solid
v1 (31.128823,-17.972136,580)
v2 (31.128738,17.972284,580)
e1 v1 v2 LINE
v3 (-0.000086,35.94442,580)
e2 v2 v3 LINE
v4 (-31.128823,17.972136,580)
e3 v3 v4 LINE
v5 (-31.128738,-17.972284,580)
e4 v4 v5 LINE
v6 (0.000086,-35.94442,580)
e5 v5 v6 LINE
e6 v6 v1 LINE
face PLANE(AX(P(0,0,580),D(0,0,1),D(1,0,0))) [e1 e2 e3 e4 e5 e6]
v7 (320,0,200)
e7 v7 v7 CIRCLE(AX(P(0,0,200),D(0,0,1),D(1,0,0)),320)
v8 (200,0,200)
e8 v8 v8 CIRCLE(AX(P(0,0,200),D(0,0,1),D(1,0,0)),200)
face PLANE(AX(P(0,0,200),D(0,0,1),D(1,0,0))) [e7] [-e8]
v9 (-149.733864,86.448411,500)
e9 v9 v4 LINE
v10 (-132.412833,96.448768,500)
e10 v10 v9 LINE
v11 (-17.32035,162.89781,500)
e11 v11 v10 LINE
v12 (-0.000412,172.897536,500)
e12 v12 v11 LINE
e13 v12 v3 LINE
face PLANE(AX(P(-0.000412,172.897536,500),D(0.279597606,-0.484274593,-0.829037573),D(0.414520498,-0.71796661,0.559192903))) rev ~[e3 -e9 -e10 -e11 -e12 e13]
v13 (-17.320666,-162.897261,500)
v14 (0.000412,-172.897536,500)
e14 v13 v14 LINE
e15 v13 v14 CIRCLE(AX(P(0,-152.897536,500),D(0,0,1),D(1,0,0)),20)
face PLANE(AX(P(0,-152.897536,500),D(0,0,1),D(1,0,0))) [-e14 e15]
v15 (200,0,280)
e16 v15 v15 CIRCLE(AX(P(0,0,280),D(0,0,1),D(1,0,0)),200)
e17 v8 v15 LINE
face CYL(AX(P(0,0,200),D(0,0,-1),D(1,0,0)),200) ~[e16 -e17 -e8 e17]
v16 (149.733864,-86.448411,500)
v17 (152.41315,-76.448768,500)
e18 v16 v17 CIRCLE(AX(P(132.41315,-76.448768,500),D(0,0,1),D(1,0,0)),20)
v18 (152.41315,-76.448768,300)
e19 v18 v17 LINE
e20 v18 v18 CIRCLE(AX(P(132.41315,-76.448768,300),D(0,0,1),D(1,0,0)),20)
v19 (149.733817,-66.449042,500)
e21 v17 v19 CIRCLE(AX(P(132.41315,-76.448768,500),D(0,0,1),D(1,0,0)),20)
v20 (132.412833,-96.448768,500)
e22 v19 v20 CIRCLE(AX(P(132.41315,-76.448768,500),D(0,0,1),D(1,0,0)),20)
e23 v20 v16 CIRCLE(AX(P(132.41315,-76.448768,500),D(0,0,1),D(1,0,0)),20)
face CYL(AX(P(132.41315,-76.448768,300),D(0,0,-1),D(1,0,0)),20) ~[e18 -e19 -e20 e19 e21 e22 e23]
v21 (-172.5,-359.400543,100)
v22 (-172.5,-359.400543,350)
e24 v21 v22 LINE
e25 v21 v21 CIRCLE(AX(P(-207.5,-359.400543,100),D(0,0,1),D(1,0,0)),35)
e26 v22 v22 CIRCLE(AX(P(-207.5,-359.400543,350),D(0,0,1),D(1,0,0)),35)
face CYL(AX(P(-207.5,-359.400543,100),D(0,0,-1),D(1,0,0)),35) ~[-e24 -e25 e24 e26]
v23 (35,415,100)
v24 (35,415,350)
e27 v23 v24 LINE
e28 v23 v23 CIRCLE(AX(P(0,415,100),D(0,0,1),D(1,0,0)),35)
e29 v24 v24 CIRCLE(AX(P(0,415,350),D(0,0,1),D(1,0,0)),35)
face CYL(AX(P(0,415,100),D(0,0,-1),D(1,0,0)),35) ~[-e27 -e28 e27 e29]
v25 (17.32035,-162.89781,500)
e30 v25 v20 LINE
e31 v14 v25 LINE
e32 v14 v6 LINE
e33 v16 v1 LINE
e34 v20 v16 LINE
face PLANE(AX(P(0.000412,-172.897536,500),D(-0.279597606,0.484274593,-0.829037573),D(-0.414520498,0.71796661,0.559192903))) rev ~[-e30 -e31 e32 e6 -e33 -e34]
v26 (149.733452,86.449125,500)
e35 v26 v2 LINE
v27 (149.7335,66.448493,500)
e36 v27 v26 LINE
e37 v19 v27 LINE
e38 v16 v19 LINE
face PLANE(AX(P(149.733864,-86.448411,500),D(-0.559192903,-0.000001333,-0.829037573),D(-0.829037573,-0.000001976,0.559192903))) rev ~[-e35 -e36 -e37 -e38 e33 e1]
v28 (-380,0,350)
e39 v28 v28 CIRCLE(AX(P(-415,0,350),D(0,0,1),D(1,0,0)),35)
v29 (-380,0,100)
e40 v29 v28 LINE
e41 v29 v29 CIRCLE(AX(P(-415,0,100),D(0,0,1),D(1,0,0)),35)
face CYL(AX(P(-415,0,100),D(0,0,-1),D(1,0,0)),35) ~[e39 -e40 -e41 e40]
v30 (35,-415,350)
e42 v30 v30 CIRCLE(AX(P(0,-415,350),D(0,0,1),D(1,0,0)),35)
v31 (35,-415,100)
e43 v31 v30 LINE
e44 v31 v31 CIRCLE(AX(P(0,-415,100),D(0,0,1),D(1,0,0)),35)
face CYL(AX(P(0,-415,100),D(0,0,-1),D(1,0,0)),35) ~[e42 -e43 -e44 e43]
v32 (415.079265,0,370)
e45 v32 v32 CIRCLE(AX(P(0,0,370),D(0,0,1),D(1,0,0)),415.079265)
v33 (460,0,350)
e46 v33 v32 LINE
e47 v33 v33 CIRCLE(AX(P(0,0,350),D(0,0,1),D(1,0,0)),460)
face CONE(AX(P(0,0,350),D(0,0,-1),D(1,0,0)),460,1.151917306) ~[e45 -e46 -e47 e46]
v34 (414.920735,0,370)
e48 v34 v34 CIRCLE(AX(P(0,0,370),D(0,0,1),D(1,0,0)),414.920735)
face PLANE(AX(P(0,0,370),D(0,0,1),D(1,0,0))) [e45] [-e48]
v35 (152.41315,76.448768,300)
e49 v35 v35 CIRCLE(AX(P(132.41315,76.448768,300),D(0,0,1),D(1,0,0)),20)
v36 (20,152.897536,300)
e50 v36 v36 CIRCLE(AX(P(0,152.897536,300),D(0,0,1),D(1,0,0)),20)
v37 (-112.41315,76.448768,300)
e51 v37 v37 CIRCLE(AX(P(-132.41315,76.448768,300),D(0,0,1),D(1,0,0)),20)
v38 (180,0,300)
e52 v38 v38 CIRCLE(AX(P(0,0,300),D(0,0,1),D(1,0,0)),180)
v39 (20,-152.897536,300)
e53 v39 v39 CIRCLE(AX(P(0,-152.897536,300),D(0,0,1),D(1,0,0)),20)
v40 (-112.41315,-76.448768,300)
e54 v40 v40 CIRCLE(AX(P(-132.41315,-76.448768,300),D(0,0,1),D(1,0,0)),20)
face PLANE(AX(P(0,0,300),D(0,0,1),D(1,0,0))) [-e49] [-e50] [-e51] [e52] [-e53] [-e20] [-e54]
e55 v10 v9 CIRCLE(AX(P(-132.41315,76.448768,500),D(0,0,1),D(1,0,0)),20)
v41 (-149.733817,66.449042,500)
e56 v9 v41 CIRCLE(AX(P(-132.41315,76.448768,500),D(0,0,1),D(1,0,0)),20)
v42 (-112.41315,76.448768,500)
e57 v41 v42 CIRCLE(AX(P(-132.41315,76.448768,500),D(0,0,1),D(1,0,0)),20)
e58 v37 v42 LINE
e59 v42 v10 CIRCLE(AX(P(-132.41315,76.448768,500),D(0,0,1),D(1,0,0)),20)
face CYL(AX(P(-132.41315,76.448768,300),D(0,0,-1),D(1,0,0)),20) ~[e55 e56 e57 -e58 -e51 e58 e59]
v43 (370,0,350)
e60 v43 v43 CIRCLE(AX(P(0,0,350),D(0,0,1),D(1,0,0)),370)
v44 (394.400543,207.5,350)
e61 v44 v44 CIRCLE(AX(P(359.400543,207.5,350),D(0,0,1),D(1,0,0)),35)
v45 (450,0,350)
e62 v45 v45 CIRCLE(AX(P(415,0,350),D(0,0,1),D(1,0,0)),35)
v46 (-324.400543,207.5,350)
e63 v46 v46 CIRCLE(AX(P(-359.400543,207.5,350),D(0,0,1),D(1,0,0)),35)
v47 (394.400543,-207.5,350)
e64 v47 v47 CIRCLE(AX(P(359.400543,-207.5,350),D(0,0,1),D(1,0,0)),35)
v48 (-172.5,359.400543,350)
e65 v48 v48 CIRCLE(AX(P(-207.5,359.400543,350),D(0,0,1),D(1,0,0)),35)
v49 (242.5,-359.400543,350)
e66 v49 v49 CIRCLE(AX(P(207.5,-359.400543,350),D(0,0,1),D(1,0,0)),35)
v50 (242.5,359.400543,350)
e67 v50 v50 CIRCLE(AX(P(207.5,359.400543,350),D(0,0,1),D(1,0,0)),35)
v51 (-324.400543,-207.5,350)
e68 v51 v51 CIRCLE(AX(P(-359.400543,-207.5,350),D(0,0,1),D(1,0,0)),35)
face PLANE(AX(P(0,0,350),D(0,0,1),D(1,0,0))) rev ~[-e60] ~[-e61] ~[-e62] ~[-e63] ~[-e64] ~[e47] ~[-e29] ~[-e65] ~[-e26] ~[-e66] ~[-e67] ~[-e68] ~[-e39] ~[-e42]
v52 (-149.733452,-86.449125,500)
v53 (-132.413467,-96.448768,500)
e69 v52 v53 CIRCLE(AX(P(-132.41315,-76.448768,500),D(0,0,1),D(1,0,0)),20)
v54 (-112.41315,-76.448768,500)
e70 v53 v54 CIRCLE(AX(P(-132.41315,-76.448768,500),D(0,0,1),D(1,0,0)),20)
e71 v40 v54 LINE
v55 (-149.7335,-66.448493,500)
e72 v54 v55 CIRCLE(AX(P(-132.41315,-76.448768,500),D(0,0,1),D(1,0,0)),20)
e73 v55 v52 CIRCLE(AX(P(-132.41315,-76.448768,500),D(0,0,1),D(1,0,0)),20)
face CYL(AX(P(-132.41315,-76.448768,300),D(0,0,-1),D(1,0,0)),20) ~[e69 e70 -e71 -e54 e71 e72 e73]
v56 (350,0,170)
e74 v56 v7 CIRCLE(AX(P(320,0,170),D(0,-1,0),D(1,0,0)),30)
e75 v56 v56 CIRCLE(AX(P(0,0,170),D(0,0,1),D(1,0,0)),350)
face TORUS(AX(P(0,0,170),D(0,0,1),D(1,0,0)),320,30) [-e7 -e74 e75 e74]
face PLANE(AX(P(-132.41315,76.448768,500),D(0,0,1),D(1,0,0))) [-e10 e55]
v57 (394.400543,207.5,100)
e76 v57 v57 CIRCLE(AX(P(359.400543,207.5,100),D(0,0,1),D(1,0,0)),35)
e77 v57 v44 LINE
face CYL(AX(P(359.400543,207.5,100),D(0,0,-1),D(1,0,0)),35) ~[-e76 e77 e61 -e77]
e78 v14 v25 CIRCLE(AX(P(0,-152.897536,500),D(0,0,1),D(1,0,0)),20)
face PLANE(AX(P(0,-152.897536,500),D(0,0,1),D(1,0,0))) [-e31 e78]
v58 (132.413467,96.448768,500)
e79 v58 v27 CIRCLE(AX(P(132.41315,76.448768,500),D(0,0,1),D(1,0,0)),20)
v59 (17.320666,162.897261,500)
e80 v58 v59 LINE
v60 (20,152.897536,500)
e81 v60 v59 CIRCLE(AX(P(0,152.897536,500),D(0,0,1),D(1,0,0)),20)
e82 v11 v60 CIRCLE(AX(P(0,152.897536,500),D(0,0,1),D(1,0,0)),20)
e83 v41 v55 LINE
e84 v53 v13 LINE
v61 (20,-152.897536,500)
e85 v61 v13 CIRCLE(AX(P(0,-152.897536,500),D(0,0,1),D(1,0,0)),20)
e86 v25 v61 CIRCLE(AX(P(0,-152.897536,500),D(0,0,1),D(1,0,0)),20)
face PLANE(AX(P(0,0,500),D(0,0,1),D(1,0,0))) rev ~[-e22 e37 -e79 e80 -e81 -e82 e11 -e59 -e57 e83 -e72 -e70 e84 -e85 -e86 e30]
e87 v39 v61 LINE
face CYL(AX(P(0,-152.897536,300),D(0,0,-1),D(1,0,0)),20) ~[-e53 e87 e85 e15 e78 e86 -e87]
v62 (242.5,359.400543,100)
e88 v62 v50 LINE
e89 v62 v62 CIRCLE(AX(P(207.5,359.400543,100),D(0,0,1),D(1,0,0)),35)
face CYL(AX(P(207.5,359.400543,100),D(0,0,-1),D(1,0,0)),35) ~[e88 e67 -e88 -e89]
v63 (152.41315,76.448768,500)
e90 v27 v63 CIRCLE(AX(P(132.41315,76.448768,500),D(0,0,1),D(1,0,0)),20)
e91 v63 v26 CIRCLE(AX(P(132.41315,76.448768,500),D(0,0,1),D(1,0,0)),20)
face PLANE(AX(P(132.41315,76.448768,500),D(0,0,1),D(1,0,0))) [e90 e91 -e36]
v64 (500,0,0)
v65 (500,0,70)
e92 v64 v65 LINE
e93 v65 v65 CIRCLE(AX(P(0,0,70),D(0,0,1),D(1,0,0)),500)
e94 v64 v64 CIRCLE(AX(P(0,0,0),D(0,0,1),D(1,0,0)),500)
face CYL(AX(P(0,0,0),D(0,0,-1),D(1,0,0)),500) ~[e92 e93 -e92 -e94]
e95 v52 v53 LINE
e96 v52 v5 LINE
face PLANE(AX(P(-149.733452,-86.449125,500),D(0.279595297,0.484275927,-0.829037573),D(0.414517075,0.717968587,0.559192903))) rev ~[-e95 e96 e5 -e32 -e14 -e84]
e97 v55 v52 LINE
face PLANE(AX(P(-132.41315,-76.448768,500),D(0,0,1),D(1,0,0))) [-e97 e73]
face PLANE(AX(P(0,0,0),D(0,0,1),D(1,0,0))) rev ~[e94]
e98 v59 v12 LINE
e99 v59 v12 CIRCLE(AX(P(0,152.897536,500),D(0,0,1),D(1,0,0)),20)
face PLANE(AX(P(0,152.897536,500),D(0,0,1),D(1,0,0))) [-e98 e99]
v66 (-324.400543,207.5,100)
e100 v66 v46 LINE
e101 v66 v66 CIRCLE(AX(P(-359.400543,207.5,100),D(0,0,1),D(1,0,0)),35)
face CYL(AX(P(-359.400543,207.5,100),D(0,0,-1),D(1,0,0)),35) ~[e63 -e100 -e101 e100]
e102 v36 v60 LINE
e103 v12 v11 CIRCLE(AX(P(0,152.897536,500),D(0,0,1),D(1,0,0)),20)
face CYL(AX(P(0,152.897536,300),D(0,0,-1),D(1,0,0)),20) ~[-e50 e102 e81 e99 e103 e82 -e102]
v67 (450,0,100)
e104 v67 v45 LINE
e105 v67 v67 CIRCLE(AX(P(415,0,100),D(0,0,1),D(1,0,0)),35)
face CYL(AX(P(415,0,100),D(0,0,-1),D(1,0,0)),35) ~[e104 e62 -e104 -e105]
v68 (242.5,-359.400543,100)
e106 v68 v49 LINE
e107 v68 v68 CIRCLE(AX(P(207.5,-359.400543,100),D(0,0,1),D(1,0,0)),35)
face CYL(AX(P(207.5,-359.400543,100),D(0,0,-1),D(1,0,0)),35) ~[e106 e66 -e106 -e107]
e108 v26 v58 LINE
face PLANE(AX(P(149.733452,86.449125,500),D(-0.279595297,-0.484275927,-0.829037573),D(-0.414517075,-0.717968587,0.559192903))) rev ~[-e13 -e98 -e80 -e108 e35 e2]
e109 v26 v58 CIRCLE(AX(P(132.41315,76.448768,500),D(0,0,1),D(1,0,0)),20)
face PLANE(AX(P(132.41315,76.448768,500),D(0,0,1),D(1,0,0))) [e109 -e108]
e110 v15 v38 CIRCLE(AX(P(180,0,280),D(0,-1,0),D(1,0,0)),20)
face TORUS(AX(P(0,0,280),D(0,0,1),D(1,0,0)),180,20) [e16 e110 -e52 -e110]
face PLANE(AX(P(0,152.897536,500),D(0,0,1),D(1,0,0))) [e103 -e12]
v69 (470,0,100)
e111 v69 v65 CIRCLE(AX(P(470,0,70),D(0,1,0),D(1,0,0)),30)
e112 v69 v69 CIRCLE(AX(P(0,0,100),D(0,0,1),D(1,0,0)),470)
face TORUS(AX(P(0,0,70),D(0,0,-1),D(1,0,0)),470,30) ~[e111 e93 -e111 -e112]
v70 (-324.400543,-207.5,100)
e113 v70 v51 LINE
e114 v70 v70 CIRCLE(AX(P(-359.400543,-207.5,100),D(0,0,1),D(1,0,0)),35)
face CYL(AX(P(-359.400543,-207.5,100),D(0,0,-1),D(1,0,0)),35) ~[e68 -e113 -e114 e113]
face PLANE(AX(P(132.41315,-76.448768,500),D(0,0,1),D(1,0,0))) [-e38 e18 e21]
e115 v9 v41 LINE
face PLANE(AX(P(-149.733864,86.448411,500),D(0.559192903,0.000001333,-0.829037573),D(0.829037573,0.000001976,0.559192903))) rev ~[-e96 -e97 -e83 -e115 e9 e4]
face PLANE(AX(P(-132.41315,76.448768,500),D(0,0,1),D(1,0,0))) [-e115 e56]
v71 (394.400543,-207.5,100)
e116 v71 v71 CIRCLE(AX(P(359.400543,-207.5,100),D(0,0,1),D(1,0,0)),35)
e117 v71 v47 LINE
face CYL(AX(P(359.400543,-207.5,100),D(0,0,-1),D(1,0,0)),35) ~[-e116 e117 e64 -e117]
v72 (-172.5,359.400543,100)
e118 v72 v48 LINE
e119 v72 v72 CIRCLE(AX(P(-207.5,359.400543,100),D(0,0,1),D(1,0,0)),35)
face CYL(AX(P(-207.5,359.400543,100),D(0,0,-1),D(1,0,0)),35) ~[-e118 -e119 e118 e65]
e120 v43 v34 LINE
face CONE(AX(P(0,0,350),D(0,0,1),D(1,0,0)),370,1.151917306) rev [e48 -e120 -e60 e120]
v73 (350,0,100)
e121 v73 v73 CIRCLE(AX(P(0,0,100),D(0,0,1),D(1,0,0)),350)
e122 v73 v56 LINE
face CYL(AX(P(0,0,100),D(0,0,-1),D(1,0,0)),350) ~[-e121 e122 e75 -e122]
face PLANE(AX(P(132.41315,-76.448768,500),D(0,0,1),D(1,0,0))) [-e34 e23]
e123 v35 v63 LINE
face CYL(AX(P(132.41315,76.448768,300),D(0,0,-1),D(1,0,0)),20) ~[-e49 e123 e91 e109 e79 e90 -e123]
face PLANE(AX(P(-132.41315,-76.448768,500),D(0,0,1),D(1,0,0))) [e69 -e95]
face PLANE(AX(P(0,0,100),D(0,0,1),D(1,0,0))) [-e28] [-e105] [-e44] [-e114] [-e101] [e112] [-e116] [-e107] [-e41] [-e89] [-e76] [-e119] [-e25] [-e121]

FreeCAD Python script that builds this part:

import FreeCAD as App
import Part
import Sketcher

V = App.Vector
Q = App.Units.Quantity


def edges_at(feature, points):
    """Names of the edges that pass closest to the given points."""
    edges = feature.Shape.Edges
    near = lambda p: min(range(len(edges)), key=lambda i: edges[i].distToShape(Part.Vertex(*p))[0])
    return sorted({f"Edge{near(p) + 1}" for p in points})


def faces_at(feature, points):
    """Names of the faces that lie closest to the given points."""
    faces = feature.Shape.Faces
    near = lambda p: min(range(len(faces)), key=lambda i: faces[i].distToShape(Part.Vertex(*p))[0])
    return sorted({f"Face{near(p) + 1}" for p in points})


def add_polygon(sketch, points):
    """Adds a closed chain of lines whose ends are joined by coincident constraints."""
    first, n = sketch.GeometryCount, len(points)
    for a, b in zip(points, points[1:] + points[:1]):
        sketch.addGeometry(Part.LineSegment(App.Vector(*a, 0), App.Vector(*b, 0)), False)
    for i in range(n):
        sketch.addConstraint(Sketcher.Constraint("Coincident", first + i, 2, first + (i + 1) % n, 1))

doc = App.newDocument("Part")
body = doc.addObject("PartDesign::Body", "Body")

# Sketch on XY plane
sketch1 = body.newObject("Sketcher::SketchObject", "Sketch")
sketch1.AttachmentSupport = (doc.getObject("XY_Plane"), [""])
sketch1.MapMode = "FlatFace"
sketch1.addGeometry(Part.Circle(V(0, 0, 0), V(0, 0, 1), 500), False)
sketch1.addConstraint([
    Sketcher.Constraint("Coincident", 0, 3, -1, 1),
    Sketcher.Constraint("Diameter", 0, Q("1000 mm")),
])
pad1 = body.newObject("PartDesign::Pad", "Pad")
pad1.Profile = sketch1
pad1.Length = 100

# Sketch on XY plane
sketch2 = body.newObject("Sketcher::SketchObject", "Sketch001")
sketch2.AttachmentSupport = (doc.getObject("XY_Plane"), [""])
sketch2.MapMode = "FlatFace"
sketch2.AttachmentOffset = App.Placement(V(0, 0, 100), App.Rotation())
sketch2.addGeometry(Part.Circle(V(0, 0, 0), V(0, 0, 1), 350), False)
sketch2.addConstraint([
    Sketcher.Constraint("Coincident", 0, 3, -1, 1),
    Sketcher.Constraint("Diameter", 0, Q("700 mm")),
])
pad2 = body.newObject("PartDesign::Pad", "Pad001")
pad2.Profile = sketch2
pad2.Length = 100

# Sketch on XY plane
sketch3 = body.newObject("Sketcher::SketchObject", "Sketch002")
sketch3.AttachmentSupport = (doc.getObject("XY_Plane"), [""])
sketch3.MapMode = "FlatFace"
sketch3.AttachmentOffset = App.Placement(V(0, 0, 200), App.Rotation())
sketch3.addGeometry(Part.Circle(V(0, 0, 0), V(0, 0, 1), 200), False)
sketch3.addConstraint([
    Sketcher.Constraint("Coincident", 0, 3, -1, 1),
    Sketcher.Constraint("Diameter", 0, Q("400 mm")),
])
pad3 = body.newObject("PartDesign::Pad", "Pad002")
pad3.Profile = sketch3
pad3.Length = 100

# Sketch on XY plane
sketch4 = body.newObject("Sketcher::SketchObject", "Sketch003")
sketch4.AttachmentSupport = (doc.getObject("XY_Plane"), [""])
sketch4.MapMode = "FlatFace"
sketch4.AttachmentOffset = App.Placement(V(0, 0, 300), App.Rotation())
sketch4.addGeometry([
    Part.Circle(V(0, 153, 0), V(0, 0, 1), 20),  # 0
    Part.Circle(V(132, 76, 0), V(0, 0, 1), 20),  # 1
    Part.Circle(V(132, -76, 0), V(0, 0, 1), 20),  # 2
    Part.Circle(V(0, -153, 0), V(0, 0, 1), 20),  # 3
    Part.Circle(V(-132, -76, 0), V(0, 0, 1), 20),  # 4
    Part.Circle(V(-132, 76, 0), V(0, 0, 1), 20),  # 5
], False)
sketch4.addConstraint([
    Sketcher.Constraint("Equal", 0, 1),
    Sketcher.Constraint("Equal", 1, 2),
    Sketcher.Constraint("Equal", 2, 3),
    Sketcher.Constraint("Equal", 3, 4),
    Sketcher.Constraint("Equal", 4, 5),
    Sketcher.Constraint("Symmetric", 0, 3, 3, 3, -1, 1),
    Sketcher.Constraint("Symmetric", 1, 3, 4, 3, -1, 1),
    Sketcher.Constraint("Symmetric", 2, 3, 5, 3, -1, 1),
    Sketcher.Constraint("Symmetric", 2, 3, 4, 3, -2),
    Sketcher.Constraint("PointOnObject", 0, 3, -2),
    Sketcher.Constraint("Diameter", 0, Q("40 mm")),
    Sketcher.Constraint("DistanceX", 4, 3, 2, 3, Q("264.8263 mm")),
    Sketcher.Constraint("DistanceY", 3, 3, 0, 3, Q("305.795071 mm")),
    Sketcher.Constraint("DistanceY", -1, 1, 1, 3, Q("76.448768 mm")),
])
pad4 = body.newObject("PartDesign::Pad", "Pad003")
pad4.Profile = sketch4
pad4.Length = 200

# Sketch on XY plane
sketch5 = body.newObject("Sketcher::SketchObject", "Sketch004")
sketch5.AttachmentSupport = (doc.getObject("XY_Plane"), [""])
sketch5.MapMode = "FlatFace"
sketch5.AttachmentOffset = App.Placement(V(0, 0, 500), App.Rotation())
add_polygon(sketch5, [(-150, -86), (0, -173), (150, -86), (150, 86), (0, 173), (-150, 86)])  # lines 0-5
sketch5.addConstraint([
    Sketcher.Constraint("Symmetric", 0, 2, 3, 2, -1, 1),
    Sketcher.Constraint("Symmetric", 1, 2, 4, 2, -1, 1),
    Sketcher.Constraint("Symmetric", 2, 2, 5, 2, -1, 1),
    Sketcher.Constraint("Equal", 0, 1),
    Sketcher.Constraint("Equal", 1, 2),
    Sketcher.Constraint("DistanceY", 1, 2, -1, 1, Q("86.448411 mm")),
    Sketcher.Constraint("DistanceX", 0, 2, 2, 2, Q("149.73304 mm")),
    Sketcher.Constraint("DistanceY", 0, 2, 2, 2, Q("259.34666 mm")),
    Sketcher.Constraint("DistanceY", 2, 2, 3, 2, Q("86.448411 mm")),
])
pad5 = body.newObject("PartDesign::Pad", "Pad004")
pad5.Profile = sketch5
pad5.Length = 80
pad5.TaperAngle = -56
doc.recompute()

fillet = body.newObject("PartDesign::Fillet", "Fillet")
fillet.Base = (pad5, edges_at(pad5, [(-500, 0, 100)]))
fillet.Radius = 30
doc.recompute()

fillet2 = body.newObject("PartDesign::Fillet", "Fillet001")
fillet2.Base = (fillet, edges_at(fillet, [(-350, 0, 200)]))
fillet2.Radius = 30
doc.recompute()

fillet3 = body.newObject("PartDesign::Fillet", "Fillet002")
fillet3.Base = (fillet2, edges_at(fillet2, [(-200, 0, 300)]))
fillet3.Radius = 20

# Sketch on XY plane
sketch6 = body.newObject("Sketcher::SketchObject", "Sketch005")
sketch6.AttachmentSupport = (doc.getObject("XY_Plane"), [""])
sketch6.MapMode = "FlatFace"
sketch6.AttachmentOffset = App.Placement(V(0, 0, 100), App.Rotation())
sketch6.addGeometry([
    Part.Circle(V(0, 415, 0), V(0, 0, 1), 35),  # 0
    Part.Circle(V(208, 359, 0), V(0, 0, 1), 35),  # 1
    Part.Circle(V(359, 208, 0), V(0, 0, 1), 35),  # 2
    Part.Circle(V(415, 0, 0), V(0, 0, 1), 35),  # 3
    Part.Circle(V(359, -208, 0), V(0, 0, 1), 35),  # 4
    Part.Circle(V(208, -359, 0), V(0, 0, 1), 35),  # 5
    Part.Circle(V(0, -415, 0), V(0, 0, 1), 35),  # 6
    Part.Circle(V(-208, -359, 0), V(0, 0, 1), 35),  # 7
    Part.Circle(V(-359, -208, 0), V(0, 0, 1), 35),  # 8
    Part.Circle(V(-415, 0, 0), V(0, 0, 1), 35),  # 9
    Part.Circle(V(-359, 208, 0), V(0, 0, 1), 35),  # 10
    Part.Circle(V(-208, 359, 0), V(0, 0, 1), 35),  # 11
], False)
sketch6.addConstraint([
    Sketcher.Constraint("Equal", 0, 1),
    Sketcher.Constraint("Equal", 1, 2),
    Sketcher.Constraint("Equal", 2, 3),
    Sketcher.Constraint("Equal", 3, 4),
    Sketcher.Constraint("Equal", 4, 5),
    Sketcher.Constraint("Equal", 5, 6),
    Sketcher.Constraint("Equal", 6, 7),
    Sketcher.Constraint("Equal", 7, 8),
    Sketcher.Constraint("Equal", 8, 9),
    Sketcher.Constraint("Equal", 9, 10),
    Sketcher.Constraint("Equal", 10, 11),
    Sketcher.Constraint("Symmetric", 0, 3, 6, 3, -1, 1),
    Sketcher.Constraint("Symmetric", 1, 3, 7, 3, -1, 1),
    Sketcher.Constraint("Symmetric", 2, 3, 8, 3, -1, 1),
    Sketcher.Constraint("Symmetric", 3, 3, 9, 3, -1, 1),
    Sketcher.Constraint("Symmetric", 4, 3, 10, 3, -1, 1),
    Sketcher.Constraint("Symmetric", 5, 3, 11, 3, -1, 1),
    Sketcher.Constraint("Symmetric", 5, 3, 7, 3, -2),
    Sketcher.Constraint("Symmetric", 4, 3, 8, 3, -2),
    Sketcher.Constraint("PointOnObject", 0, 3, -2),
    Sketcher.Constraint("PointOnObject", 3, 3, -1),
    Sketcher.Constraint("Diameter", 0, Q("70 mm")),
    Sketcher.Constraint("DistanceY", -1, 1, 0, 3, Q("415 mm")),
    Sketcher.Constraint("DistanceX", -1, 1, 3, 3, Q("415 mm")),
    Sketcher.Constraint("DistanceY", 4, 3, 2, 3, Q("415 mm")),
    Sketcher.Constraint("DistanceX", 7, 3, 5, 3, Q("415 mm")),
    Sketcher.Constraint("DistanceY", -1, 1, 1, 3, Q("359.400543 mm")),
    Sketcher.Constraint("DistanceX", -1, 1, 2, 3, Q("359.400543 mm")),
])
pad6 = body.newObject("PartDesign::Pad", "Pad005")
pad6.Profile = sketch6
pad6.Length = 250
body2 = doc.addObject("PartDesign::Body", "Body001")

# Sketch on XY plane
sketch7 = body2.newObject("Sketcher::SketchObject", "Sketch006")
sketch7.AttachmentSupport = (doc.getObject("XY_Plane001"), [""])
sketch7.MapMode = "FlatFace"
sketch7.AttachmentOffset = App.Placement(V(0, 0, 350), App.Rotation())
sketch7.addGeometry([
    Part.Circle(V(0, 0, 0), V(0, 0, 1), 460),
    Part.Circle(V(0, 0, 0), V(0, 0, 1), 370),
], False)
sketch7.addConstraint([
    Sketcher.Constraint("Coincident", 0, 3, -1, 1),
    Sketcher.Constraint("Coincident", 1, 3, -1, 1),
    Sketcher.Constraint("Diameter", 0, Q("920 mm")),
    Sketcher.Constraint("Diameter", 1, Q("740 mm")),
])
pad7 = body2.newObject("PartDesign::Pad", "Pad006")
pad7.Profile = sketch7
pad7.Length = 20
doc.recompute()

datumplane = body2.newObject("PartDesign::Plane", "DatumPlane")
datumplane.AttachmentSupport = (doc.getObject("XY_Plane001"), [""])
datumplane.MapMode = "FlatFace"
datumplane.AttachmentOffset = App.Placement(V(0, 0, 350), App.Rotation())
draft = body2.newObject("PartDesign::Draft", "Draft")
draft.Base = (pad7, faces_at(pad7, [(-460, 0, 360), (-370, 0, 360)]))
draft.NeutralPlane = (datumplane, [""])
draft.Angle = 66
draft.Reversed = False
doc.recompute()

boolean = body.newObject("PartDesign::Boolean", "Boolean")
boolean.Type = "Fuse"
boolean.addObjects([body2])

doc.recompute()
